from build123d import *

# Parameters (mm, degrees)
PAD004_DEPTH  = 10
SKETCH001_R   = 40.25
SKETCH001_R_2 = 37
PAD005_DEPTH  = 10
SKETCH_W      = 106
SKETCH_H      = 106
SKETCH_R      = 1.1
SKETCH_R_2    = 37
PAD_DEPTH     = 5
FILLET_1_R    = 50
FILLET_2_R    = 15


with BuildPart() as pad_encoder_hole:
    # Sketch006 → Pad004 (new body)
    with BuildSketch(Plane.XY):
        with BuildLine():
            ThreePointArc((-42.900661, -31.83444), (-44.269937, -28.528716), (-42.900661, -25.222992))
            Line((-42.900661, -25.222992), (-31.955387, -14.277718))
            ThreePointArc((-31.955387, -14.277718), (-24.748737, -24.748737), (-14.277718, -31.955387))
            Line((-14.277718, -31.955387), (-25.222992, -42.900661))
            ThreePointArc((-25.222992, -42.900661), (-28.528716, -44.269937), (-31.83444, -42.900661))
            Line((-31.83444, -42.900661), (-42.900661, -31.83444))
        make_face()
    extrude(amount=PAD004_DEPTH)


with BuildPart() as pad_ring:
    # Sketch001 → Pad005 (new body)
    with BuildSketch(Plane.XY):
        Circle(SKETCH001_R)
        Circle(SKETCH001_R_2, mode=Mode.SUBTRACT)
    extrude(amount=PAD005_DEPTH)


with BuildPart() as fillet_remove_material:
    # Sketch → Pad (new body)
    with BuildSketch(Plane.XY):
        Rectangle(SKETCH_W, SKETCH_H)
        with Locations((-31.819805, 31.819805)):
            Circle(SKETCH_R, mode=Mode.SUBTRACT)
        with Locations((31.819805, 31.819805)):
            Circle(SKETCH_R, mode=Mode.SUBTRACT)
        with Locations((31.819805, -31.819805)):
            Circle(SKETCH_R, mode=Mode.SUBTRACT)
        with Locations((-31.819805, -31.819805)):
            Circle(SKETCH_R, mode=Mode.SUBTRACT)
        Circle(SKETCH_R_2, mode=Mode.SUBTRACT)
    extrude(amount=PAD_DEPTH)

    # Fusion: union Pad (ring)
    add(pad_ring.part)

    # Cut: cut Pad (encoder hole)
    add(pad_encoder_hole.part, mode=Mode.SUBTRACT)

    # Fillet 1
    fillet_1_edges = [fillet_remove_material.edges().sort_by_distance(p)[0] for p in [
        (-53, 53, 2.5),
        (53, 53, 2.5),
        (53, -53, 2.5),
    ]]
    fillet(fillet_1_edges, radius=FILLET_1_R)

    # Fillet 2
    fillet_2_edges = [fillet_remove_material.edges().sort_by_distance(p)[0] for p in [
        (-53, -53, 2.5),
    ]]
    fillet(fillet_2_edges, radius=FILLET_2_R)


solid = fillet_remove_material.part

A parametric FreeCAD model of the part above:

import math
import FreeCAD as App
import Part
import Sketcher

V = App.Vector


def edges_at(feature, points):
    """Names of the edges that pass closest to the given points."""
    edges = feature.Shape.Edges
    near = lambda p: min(range(len(edges)), key=lambda i: edges[i].distToShape(Part.Vertex(*p))[0])
    return sorted({f"Edge{near(p) + 1}" for p in points})

doc = App.newDocument("Part")
body = doc.addObject("PartDesign::Body", "Body")

# Sketch on XY plane
sketch1 = body.newObject("Sketcher::SketchObject", "Sketch")
sketch1.AttachmentSupport = (doc.getObject("XY_Plane"), [""])
sketch1.MapMode = "FlatFace"
sketch1.addGeometry([
    Part.ArcOfCircle(Part.Circle(V(-39.594938, -28.528716, 0), V(0, 0, 1), 4.674999), math.radians(134.999992), math.radians(225.000008)),  # 0
    Part.LineSegment(V(-42.900661, -31.83444, 0), V(-31.83444, -42.900661, 0)),  # 1
    Part.ArcOfCircle(Part.Circle(V(-28.528716, -39.594938, 0), V(0, 0, 1), 4.674999), math.radians(-135.000008), math.radians(-44.999992)),  # 2
    Part.LineSegment(V(-25.222992, -42.900661, 0), V(-14.277718, -31.955387, 0)),  # 3
    Part.ArcOfCircle(Part.Circle(V(0.000004, 0.000004, 0), V(0, 0, 1), 35.000005), math.radians(-155.924829), math.radians(-114.075171)),  # 4
    Part.LineSegment(V(-31.955387, -14.277718, 0), V(-42.900661, -25.222992, 0)),  # 5
], False)
sketch1.addConstraint([
    Sketcher.Constraint("Tangent", 0, 2, 1, 1),
    Sketcher.Constraint("Tangent", 1, 2, 2, 1),
    Sketcher.Constraint("Tangent", 2, 2, 3, 1),
    Sketcher.Constraint("Coincident", 3, 2, 4, 2),
    Sketcher.Constraint("Coincident", 4, 1, 5, 1),
    Sketcher.Constraint("Tangent", 5, 2, 0, 1),
    Sketcher.Constraint("Coincident", 4, 3, -1, 1),
    Sketcher.Constraint("Equal", 0, 2),
    Sketcher.Constraint("Perpendicular", 1, 3),
    Sketcher.Constraint("Parallel", 3, 5),
    Sketcher.Constraint("Horizontal", 1, 2, 2, 2),
    Sketcher.Constraint("Equal", 3, 5),
    Sketcher.Constraint("Radius", 0, 4.674999),
    Sketcher.Constraint("Distance", 1, 15.65),
    Sketcher.Constraint("Radius", 4, 35.000005),
    Sketcher.Constraint("DistanceY", 0, 3, 4, 1, 14.250998),
])
pad1 = body.newObject("PartDesign::Pad", "Pad")
pad1.Profile = sketch1
pad1.Length = 10
body2 = doc.addObject("PartDesign::Body", "Body001")

# Sketch on XY plane
sketch2 = body2.newObject("Sketcher::SketchObject", "Sketch001")
sketch2.AttachmentSupport = (doc.getObject("XY_Plane001"), [""])
sketch2.MapMode = "FlatFace"
sketch2.addGeometry([
    Part.Circle(V(0, 0, 0), V(0, 0, 1), 40.25),
    Part.Circle(V(0, 0, 0), V(0, 0, 1), 37),
], False)
sketch2.addConstraint([
    Sketcher.Constraint("Coincident", 0, 3, -1, 1),
    Sketcher.Constraint("Coincident", 1, 3, -1, 1),
    Sketcher.Constraint("Diameter", 1, 74.0),
    Sketcher.Constraint("Diameter", 0, 80.5),
])
pad2 = body2.newObject("PartDesign::Pad", "Pad001")
pad2.Profile = sketch2
pad2.Length = 10
body3 = doc.addObject("PartDesign::Body", "Body002")

# Sketch on XY plane
sketch3 = body3.newObject("Sketcher::SketchObject", "Sketch002")
sketch3.AttachmentSupport = (doc.getObject("XY_Plane002"), [""])
sketch3.MapMode = "FlatFace"
sketch3.addGeometry([
    Part.LineSegment(V(-53, 53, 0), V(-53, -53, 0)),  # 0
    Part.LineSegment(V(-53, -53, 0), V(53, -53, 0)),  # 1
    Part.LineSegment(V(53, -53, 0), V(53, 53, 0)),  # 2
    Part.LineSegment(V(53, 53, 0), V(-53, 53, 0)),  # 3
    Part.Circle(V(-31.819805, -31.819805, 0), V(0, 0, 1), 1.1),  # 4
    Part.Circle(V(31.819805, -31.819805, 0), V(0, 0, 1), 1.1),  # 5
    Part.Circle(V(-31.819805, 31.819805, 0), V(0, 0, 1), 1.1),  # 6
    Part.Circle(V(0, 0, 0), V(0, 0, 1), 37),  # 7
    Part.Circle(V(31.819805, 31.819805, 0), V(0, 0, 1), 1.1),  # 8
], False)
sketch3.addConstraint([
    Sketcher.Constraint("Coincident", 0, 2, 1, 1),
    Sketcher.Constraint("Coincident", 1, 2, 2, 1),
    Sketcher.Constraint("Coincident", 2, 2, 3, 1),
    Sketcher.Constraint("Coincident", 3, 2, 0, 1),
    Sketcher.Constraint("Vertical", 0),
    Sketcher.Constraint("Horizontal", 1),
    Sketcher.Constraint("Vertical", 2),
    Sketcher.Constraint("Horizontal", 3),
    Sketcher.Constraint("Coincident", 7, 3, -1, 1),
    Sketcher.Constraint("Equal", 4, 5),
    Sketcher.Constraint("Equal", 5, 6),
    Sketcher.Constraint("Equal", 6, 8),
    Sketcher.Constraint("Symmetric", 5, 3, 6, 3, -1, 1),
    Sketcher.Constraint("Symmetric", 4, 3, 8, 3, -1, 1),
    Sketcher.Constraint("Symmetric", 0, 2, 2, 2, -1, 1),
    Sketcher.Constraint("Symmetric", 4, 3, 5, 3, -2),
    Sketcher.Constraint("Equal", 3, 0),
    Sketcher.Constraint("Diameter", 7, 74.0),
    Sketcher.Constraint("Diameter", 4, 2.2),
    Sketcher.Constraint("DistanceX", 1, 1, 1, 2, 106.0),
    Sketcher.Constraint("DistanceX", 4, 3, 5, 3, 63.63961),
    Sketcher.Constraint("DistanceY", 4, 3, 6, 3, 63.63961),
])
pad3 = body3.newObject("PartDesign::Pad", "Pad002")
pad3.Profile = sketch3
pad3.Length = 5
doc.recompute()

boolean = body3.newObject("PartDesign::Boolean", "Boolean")
boolean.Type = "Fuse"
boolean.addObjects([body2])
doc.recompute()

boolean2 = body3.newObject("PartDesign::Boolean", "Boolean001")
boolean2.Type = "Cut"
boolean2.addObjects([body])
doc.recompute()

fillet = body3.newObject("PartDesign::Fillet", "Fillet")
fillet.Base = (boolean2, edges_at(boolean2, [(-53, 53, 2.5), (53, 53, 2.5), (53, -53, 2.5)]))
fillet.Radius = 50
doc.recompute()

fillet2 = body3.newObject("PartDesign::Fillet", "Fillet001")
fillet2.Base = (fillet, edges_at(fillet, [(-53, -53, 2.5)]))
fillet2.Radius = 15

doc.recompute()
